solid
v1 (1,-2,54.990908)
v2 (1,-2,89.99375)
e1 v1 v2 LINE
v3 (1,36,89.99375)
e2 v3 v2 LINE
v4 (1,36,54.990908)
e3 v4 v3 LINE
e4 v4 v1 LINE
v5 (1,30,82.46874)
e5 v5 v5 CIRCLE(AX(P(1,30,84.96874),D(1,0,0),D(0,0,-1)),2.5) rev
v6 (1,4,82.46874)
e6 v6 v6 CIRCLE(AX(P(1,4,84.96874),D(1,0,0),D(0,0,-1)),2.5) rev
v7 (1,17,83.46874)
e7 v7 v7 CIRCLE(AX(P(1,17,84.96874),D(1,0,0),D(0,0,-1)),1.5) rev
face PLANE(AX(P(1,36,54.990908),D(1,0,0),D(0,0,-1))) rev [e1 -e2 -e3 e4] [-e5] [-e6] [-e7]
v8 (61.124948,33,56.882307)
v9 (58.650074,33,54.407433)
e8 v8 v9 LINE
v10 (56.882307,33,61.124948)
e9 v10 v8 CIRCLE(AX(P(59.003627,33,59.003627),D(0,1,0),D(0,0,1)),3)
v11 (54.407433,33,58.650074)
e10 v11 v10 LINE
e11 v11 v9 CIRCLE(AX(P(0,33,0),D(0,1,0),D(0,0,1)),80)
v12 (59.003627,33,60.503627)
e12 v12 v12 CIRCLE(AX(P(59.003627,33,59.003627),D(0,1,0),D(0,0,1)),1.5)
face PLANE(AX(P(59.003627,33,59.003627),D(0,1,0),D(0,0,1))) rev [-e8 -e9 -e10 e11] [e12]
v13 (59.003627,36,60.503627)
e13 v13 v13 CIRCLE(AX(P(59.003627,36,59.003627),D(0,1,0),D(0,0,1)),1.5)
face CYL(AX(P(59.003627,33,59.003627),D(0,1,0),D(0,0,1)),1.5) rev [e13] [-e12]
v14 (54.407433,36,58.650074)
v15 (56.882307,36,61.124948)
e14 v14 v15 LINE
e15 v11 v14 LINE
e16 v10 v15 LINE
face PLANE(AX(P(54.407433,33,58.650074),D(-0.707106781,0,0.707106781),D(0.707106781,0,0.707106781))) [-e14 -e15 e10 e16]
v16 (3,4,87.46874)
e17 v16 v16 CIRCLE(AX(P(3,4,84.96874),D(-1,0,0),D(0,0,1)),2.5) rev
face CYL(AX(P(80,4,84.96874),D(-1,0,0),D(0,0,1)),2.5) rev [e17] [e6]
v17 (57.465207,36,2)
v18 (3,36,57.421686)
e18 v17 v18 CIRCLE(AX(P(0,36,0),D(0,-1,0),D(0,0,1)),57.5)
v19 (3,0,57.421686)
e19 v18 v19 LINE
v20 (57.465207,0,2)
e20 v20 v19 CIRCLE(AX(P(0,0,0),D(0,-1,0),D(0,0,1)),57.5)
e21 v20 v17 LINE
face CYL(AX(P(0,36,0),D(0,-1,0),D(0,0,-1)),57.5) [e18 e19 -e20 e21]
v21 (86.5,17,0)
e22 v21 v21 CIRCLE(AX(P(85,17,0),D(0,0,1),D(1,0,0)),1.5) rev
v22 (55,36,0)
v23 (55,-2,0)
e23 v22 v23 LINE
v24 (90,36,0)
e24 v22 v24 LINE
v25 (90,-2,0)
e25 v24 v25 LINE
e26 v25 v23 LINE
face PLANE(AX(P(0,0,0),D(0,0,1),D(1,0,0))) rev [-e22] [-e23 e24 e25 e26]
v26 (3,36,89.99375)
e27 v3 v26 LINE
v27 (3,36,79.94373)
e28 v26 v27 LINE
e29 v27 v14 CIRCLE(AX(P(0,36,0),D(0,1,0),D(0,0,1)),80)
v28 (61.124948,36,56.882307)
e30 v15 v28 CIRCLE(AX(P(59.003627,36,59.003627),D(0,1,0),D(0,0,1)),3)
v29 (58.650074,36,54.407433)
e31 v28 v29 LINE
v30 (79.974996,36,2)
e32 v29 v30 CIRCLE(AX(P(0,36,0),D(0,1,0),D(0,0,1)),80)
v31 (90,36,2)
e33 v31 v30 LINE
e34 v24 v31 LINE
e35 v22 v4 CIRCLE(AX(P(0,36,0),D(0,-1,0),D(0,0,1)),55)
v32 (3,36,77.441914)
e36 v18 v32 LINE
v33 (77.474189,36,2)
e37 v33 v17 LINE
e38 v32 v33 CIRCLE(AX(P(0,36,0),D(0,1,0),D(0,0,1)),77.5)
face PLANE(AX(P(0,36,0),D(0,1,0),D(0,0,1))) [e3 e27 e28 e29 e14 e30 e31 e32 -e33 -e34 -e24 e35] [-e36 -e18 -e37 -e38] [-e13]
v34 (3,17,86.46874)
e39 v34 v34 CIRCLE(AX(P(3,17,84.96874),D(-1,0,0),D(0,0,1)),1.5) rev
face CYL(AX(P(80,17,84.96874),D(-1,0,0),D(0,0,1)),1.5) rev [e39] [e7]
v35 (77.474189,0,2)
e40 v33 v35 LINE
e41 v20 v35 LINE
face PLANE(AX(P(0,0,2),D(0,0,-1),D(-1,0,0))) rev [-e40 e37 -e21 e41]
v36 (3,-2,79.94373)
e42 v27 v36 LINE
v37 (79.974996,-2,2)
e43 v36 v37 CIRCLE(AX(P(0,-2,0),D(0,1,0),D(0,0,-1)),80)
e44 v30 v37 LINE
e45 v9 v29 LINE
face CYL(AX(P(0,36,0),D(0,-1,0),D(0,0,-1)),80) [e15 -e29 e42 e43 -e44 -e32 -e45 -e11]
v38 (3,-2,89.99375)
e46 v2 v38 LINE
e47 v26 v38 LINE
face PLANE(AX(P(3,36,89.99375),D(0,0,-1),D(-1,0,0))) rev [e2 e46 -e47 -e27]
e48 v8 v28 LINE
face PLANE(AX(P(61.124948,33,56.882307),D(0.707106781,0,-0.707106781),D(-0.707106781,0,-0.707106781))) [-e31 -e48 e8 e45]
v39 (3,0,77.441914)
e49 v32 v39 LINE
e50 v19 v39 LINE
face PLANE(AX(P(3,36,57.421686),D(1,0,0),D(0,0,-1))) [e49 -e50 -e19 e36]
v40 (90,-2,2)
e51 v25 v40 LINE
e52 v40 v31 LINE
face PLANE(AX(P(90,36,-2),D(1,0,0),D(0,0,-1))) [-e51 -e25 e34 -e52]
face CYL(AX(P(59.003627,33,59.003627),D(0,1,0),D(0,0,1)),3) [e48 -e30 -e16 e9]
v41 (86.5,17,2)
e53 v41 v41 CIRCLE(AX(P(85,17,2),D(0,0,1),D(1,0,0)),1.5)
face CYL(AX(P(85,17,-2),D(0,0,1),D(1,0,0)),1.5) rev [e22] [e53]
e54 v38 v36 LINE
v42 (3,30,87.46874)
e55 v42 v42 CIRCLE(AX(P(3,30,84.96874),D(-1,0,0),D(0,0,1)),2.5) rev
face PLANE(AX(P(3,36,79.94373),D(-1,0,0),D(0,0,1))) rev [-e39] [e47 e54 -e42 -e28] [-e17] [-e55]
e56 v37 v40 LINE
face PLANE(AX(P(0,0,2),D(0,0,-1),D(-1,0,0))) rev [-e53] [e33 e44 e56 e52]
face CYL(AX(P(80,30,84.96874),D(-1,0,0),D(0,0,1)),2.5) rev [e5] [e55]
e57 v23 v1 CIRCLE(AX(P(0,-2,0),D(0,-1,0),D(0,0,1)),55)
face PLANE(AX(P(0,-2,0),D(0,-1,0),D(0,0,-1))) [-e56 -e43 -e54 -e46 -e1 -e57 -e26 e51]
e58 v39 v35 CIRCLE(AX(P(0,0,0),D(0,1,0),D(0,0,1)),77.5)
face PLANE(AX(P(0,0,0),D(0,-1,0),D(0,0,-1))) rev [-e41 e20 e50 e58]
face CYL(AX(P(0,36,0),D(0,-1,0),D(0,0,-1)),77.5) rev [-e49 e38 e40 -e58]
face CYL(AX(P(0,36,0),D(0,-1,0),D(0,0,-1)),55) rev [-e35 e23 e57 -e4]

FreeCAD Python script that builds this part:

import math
import FreeCAD as App
import Part
import Sketcher
from FreeCAD import Vector
Q = App.Units.Quantity


def add_polygon(sketch, points):
    """Adds a closed chain of lines whose ends are joined by coincident constraints."""
    first, n = sketch.GeometryCount, len(points)
    for a, b in zip(points, points[1:] + points[:1]):
        sketch.addGeometry(Part.LineSegment(App.Vector(*a, 0), App.Vector(*b, 0)), False)
    for i in range(n):
        sketch.addConstraint(Sketcher.Constraint("Coincident", first + i, 2, first + (i + 1) % n, 1))

doc = App.newDocument("Part")
params = doc.addObject("Spreadsheet::Sheet", "Params")
for row, (alias, value) in enumerate([
    ("sketch1_radius", "80 mm"),
    ("sketch1_radius2", "55 mm"),
    ("sketch1_radius3", "77.5 mm"),
    ("sketch1_radius4", "57.5 mm"),
    ("sketch1_width", "2 mm"),
    ("pad1_length", "36 mm"),
    ("sketch2_radius", "55 mm"),
    ("sketch2_radius2", "80 mm"),
    ("sketch2_width", "2 mm"),
    ("pad2_length", "2 mm"),
    ("sketch3_diameter", "5 mm"),
    ("sketch3_diameter2", "3 mm"),
    ("sketch4_diameter", "3 mm"),
    ("sketch4_width", "35 mm"),
    ("sketch4_height", "38 mm"),
    ("pad3_length", "2 mm"),
    ("pad3_length2", "2 mm"),
    ("sketch6_diameter", "3 mm"),
    ("sketch6_radius", "3 mm"),
    ("sketch6_length", "3.5 mm"),
    ("pad4_length", "3 mm"),
], start=1):
    params.set(f"A{row}", alias)
    params.set(f"B{row}", "=" + value)
    params.setAlias(f"B{row}", alias)

body = doc.addObject("PartDesign::Body", "Body")

sketch1 = body.newObject("Sketcher::SketchObject", "Sketch")
sketch1.AttachmentSupport = (doc.getObject("XZ_Plane"), [""])
sketch1.MapMode = "FlatFace"
sketch1.addGeometry([
    Part.LineSegment(Vector(3, 89.99375, 0), Vector(3, 79.94373, 0)),
    Part.ArcOfCircle(Part.Circle(Vector(0, 0, 0), Vector(0, 0, 1), 80), math.radians(-87.850904), math.radians(87.850904)),
    Part.LineSegment(Vector(3, -79.94373, 0), Vector(3, -89.99375, 0)),
    Part.LineSegment(Vector(3, -89.99375, 0), Vector(1, -89.99375, 0)),
    Part.LineSegment(Vector(1, -89.99375, 0), Vector(1, -54.990908, 0)),
    Part.ArcOfCircle(Part.Circle(Vector(0, 0, 0), Vector(0, 0, 1), 55), math.radians(-88.958201), math.radians(88.958201)),
    Part.LineSegment(Vector(1, 54.990908, 0), Vector(1, 89.99375, 0)),
    Part.LineSegment(Vector(1, 89.99375, 0), Vector(3, 89.99375, 0)),
    Part.ArcOfCircle(Part.Circle(Vector(0, 0, 0), Vector(0, 0, 1), 77.5), math.radians(-87.781545), math.radians(87.781545)),
    Part.LineSegment(Vector(3, 77.441914, 0), Vector(3, 57.421686, 0)),
    Part.ArcOfCircle(Part.Circle(Vector(0, 0, 0), Vector(0, 0, 1), 57.5), math.radians(-87.009297), math.radians(87.009297)),
    Part.LineSegment(Vector(3, -57.421686, 0), Vector(3, -77.441914, 0)),
], False)
sketch1.addConstraint([
    Sketcher.Constraint("Coincident", 0, 2, 1, 2),
    Sketcher.Constraint("Coincident", 1, 1, 2, 1),
    Sketcher.Constraint("Coincident", 2, 2, 3, 1),
    Sketcher.Constraint("Coincident", 3, 2, 4, 1),
    Sketcher.Constraint("Coincident", 4, 2, 5, 1),
    Sketcher.Constraint("Coincident", 5, 2, 6, 1),
    Sketcher.Constraint("Coincident", 6, 2, 7, 1),
    Sketcher.Constraint("Coincident", 7, 2, 0, 1),
    Sketcher.Constraint("Coincident", 8, 2, 9, 1),
    Sketcher.Constraint("Coincident", 9, 2, 10, 2),
    Sketcher.Constraint("Coincident", 10, 1, 11, 1),
    Sketcher.Constraint("Coincident", 11, 2, 8, 1),
    Sketcher.Constraint("Vertical", 0),
    Sketcher.Constraint("Vertical", 2),
    Sketcher.Constraint("Horizontal", 3),
    Sketcher.Constraint("Vertical", 4),
    Sketcher.Constraint("Vertical", 6),
    Sketcher.Constraint("Horizontal", 7),
    Sketcher.Constraint("Vertical", 9),
    Sketcher.Constraint("Vertical", 11),
    Sketcher.Constraint("Coincident", 1, 3, -1, 1),
    Sketcher.Constraint("Coincident", 5, 3, -1, 1),
    Sketcher.Constraint("Coincident", 8, 3, -1, 1),
    Sketcher.Constraint("Coincident", 10, 3, -1, 1),
    Sketcher.Constraint("Symmetric", 3, 2, 6, 2, -1),
    Sketcher.Constraint("Vertical", 0, 2, 1, 1),
    Sketcher.Constraint("Vertical", 7, 2, 8, 2),
    Sketcher.Constraint("Vertical", 9, 2, 10, 1),
    Sketcher.Constraint("Radius", 1, 80.0),
    Sketcher.Constraint("Radius", 5, 55.0),
    Sketcher.Constraint("Radius", 8, 77.5),
    Sketcher.Constraint("Radius", 10, 57.5),
    Sketcher.Constraint("DistanceX", 3, 2, 3, 1, 2.0),
    Sketcher.Constraint("DistanceX", -1, 1, 0, 2, 3.0),
    Sketcher.Constraint("DistanceY", 0, 2, 0, 1, 10.05002),
])
sketch1.setExpression("Constraints[28]", "Params.sketch1_radius")
sketch1.setExpression("Constraints[29]", "Params.sketch1_radius2")
sketch1.setExpression("Constraints[30]", "Params.sketch1_radius3")
sketch1.setExpression("Constraints[31]", "Params.sketch1_radius4")
sketch1.setExpression("Constraints[32]", "Params.sketch1_width")
pad1 = body.newObject("PartDesign::Pad", "Pad")
pad1.Profile = sketch1
pad1.setExpression("Length", "Params.pad1_length")
pad1.Reversed = True

sketch2 = body.newObject("Sketcher::SketchObject", "Sketch001")
sketch2.AttachmentSupport = (doc.getObject("XZ_Plane"), [""])
sketch2.MapMode = "FlatFace"
sketch2.AttachmentOffset = App.Placement(Vector(0, 0, 2), App.Rotation())
sketch2.addGeometry([
    Part.LineSegment(Vector(1, -89.99375, 0), Vector(1, -54.990908, 0)),
    Part.ArcOfCircle(Part.Circle(Vector(0, 0, 0), Vector(0, 0, 1), 55), math.radians(-88.958201), math.radians(88.958201)),
    Part.LineSegment(Vector(1, 54.990908, 0), Vector(1, 89.99375, 0)),
    Part.LineSegment(Vector(1, 89.99375, 0), Vector(3, 89.99375, 0)),
    Part.LineSegment(Vector(3, 89.99375, 0), Vector(3, 79.94373, 0)),
    Part.ArcOfCircle(Part.Circle(Vector(0, 0, 0), Vector(0, 0, 1), 80), math.radians(-87.850904), math.radians(87.850904)),
    Part.LineSegment(Vector(3, -79.94373, 0), Vector(3, -89.99375, 0)),
    Part.LineSegment(Vector(3, -89.99375, 0), Vector(1, -89.99375, 0)),
], False)
sketch2.addConstraint([
    Sketcher.Constraint("Coincident", 0, 2, 1, 1),
    Sketcher.Constraint("Coincident", 1, 2, 2, 1),
    Sketcher.Constraint("Coincident", 2, 2, 3, 1),
    Sketcher.Constraint("Coincident", 3, 2, 4, 1),
    Sketcher.Constraint("Coincident", 4, 2, 5, 2),
    Sketcher.Constraint("Coincident", 5, 1, 6, 1),
    Sketcher.Constraint("Coincident", 6, 2, 7, 1),
    Sketcher.Constraint("Coincident", 7, 2, 0, 1),
    Sketcher.Constraint("Vertical", 0),
    Sketcher.Constraint("Vertical", 2),
    Sketcher.Constraint("Horizontal", 3),
    Sketcher.Constraint("Vertical", 4),
    Sketcher.Constraint("Vertical", 6),
    Sketcher.Constraint("Horizontal", 7),
    Sketcher.Constraint("Coincident", 1, 3, -1, 1),
    Sketcher.Constraint("Coincident", 5, 3, -1, 1),
    Sketcher.Constraint("Symmetric", 3, 2, 6, 2, -1),
    Sketcher.Constraint("Vertical", 0, 2, 1, 2),
    Sketcher.Constraint("Radius", 1, 55.0),
    Sketcher.Constraint("Radius", 5, 80.0),
    Sketcher.Constraint("DistanceX", 3, 1, 3, 2, 2.0),
    Sketcher.Constraint("DistanceX", -1, 1, 0, 2, 1.0),
    Sketcher.Constraint("DistanceY", 0, 1, 0, 2, 35.002841),
])
sketch2.setExpression("Constraints[18]", "Params.sketch2_radius")
sketch2.setExpression("Constraints[19]", "Params.sketch2_radius2")
sketch2.setExpression("Constraints[20]", "Params.sketch2_width")
pad2 = body.newObject("PartDesign::Pad", "Pad001")
pad2.Profile = sketch2
pad2.setExpression("Length", "Params.pad2_length")
pad2.Reversed = True

sketch3 = body.newObject("Sketcher::SketchObject", "Sketch002")
sketch3.AttachmentSupport = (doc.getObject("YZ_Plane"), [""])
sketch3.MapMode = "FlatFace"
sketch3.addGeometry([
    Part.Circle(Vector(30, 84.96874, 0), Vector(0, 0, 1), 2.5),
    Part.Circle(Vector(17, 84.96874, 0), Vector(0, 0, 1), 1.5),
    Part.Circle(Vector(17, -84.96874, 0), Vector(0, 0, 1), 1.5),
    Part.Circle(Vector(30, -84.96874, 0), Vector(0, 0, 1), 2.5),
    Part.Circle(Vector(4, 84.96874, 0), Vector(0, 0, 1), 2.5),
], False)
sketch3.addConstraint([
    Sketcher.Constraint("Equal", 1, 2),
    Sketcher.Constraint("Equal", 0, 3),
    Sketcher.Constraint("Equal", 3, 4),
    Sketcher.Constraint("Symmetric", 1, 3, 2, 3, -1),
    Sketcher.Constraint("Symmetric", 0, 3, 3, 3, -1),
    Sketcher.Constraint("Horizontal", 0, 3, 1, 3),
    Sketcher.Constraint("Horizontal", 1, 3, 4, 3),
    Sketcher.Constraint("Diameter", 0, 5.0),
    Sketcher.Constraint("Diameter", 1, 3.0),
    Sketcher.Constraint("DistanceX", -1, 1, 0, 3, 30.0),
    Sketcher.Constraint("DistanceX", -1, 1, 1, 3, 17.0),
    Sketcher.Constraint("DistanceX", -1, 1, 4, 3, 4.0),
    Sketcher.Constraint("DistanceY", -1, 1, 0, 3, 84.96874),
])
sketch3.setExpression("Constraints[7]", "Params.sketch3_diameter")
sketch3.setExpression("Constraints[8]", "Params.sketch3_diameter2")
pocket1 = body.newObject("PartDesign::Pocket", "Pocket")
pocket1.Profile = sketch3
pocket1.Type = "ThroughAll"
pocket1.Reversed = True

sketch4 = body.newObject("Sketcher::SketchObject", "Sketch003")
sketch4.AttachmentSupport = (doc.getObject("XY_Plane"), [""])
sketch4.MapMode = "FlatFace"
add_polygon(sketch4, [(55, 36), (55, -2), (90, -2), (90, 36)])
sketch4.addGeometry(Part.Circle(Vector(85, 17, 0), Vector(0, 0, 1), 1.5), False)
sketch4.addConstraint([
    Sketcher.Constraint("Vertical", 0),
    Sketcher.Constraint("Horizontal", 1),
    Sketcher.Constraint("Vertical", 2),
    Sketcher.Constraint("Horizontal", 3),
    Sketcher.Constraint("Diameter", 4, 3.0),
    Sketcher.Constraint("DistanceX", 1, 1, 1, 2, 35.0),
    Sketcher.Constraint("DistanceY", 0, 2, 0, 1, 38.0),
    Sketcher.Constraint("DistanceX", -1, 1, 4, 3, 85.0),
    Sketcher.Constraint("DistanceY", -1, 1, 4, 3, 17.0),
    Sketcher.Constraint("DistanceX", -1, 1, 0, 2, 55.0),
    Sketcher.Constraint("DistanceY", 0, 2, -1, 1, 2.0),
])
sketch4.setExpression("Constraints[8]", "Params.sketch4_diameter")
sketch4.setExpression("Constraints[9]", "Params.sketch4_width")
sketch4.setExpression("Constraints[10]", "Params.sketch4_height")
pad3 = body.newObject("PartDesign::Pad", "Pad002")
pad3.Profile = sketch4
pad3.Type = "TwoLengths"
pad3.setExpression("Length", "Params.pad3_length")
pad3.setExpression("Length2", "Params.pad3_length2")

sketch5 = body.newObject("Sketcher::SketchObject", "Sketch004")
sketch5.AttachmentSupport = (doc.getObject("XY_Plane"), [""])
sketch5.MapMode = "FlatFace"
add_polygon(sketch5, [(-2.18467, 44.525509), (-2.18467, -3.381722), (96.500492, -3.381722), (96.500492, 44.525509)])
sketch5.addConstraint([
    Sketcher.Constraint("Vertical", 0),
    Sketcher.Constraint("Horizontal", 1),
    Sketcher.Constraint("Vertical", 2),
    Sketcher.Constraint("Horizontal", 3),
    Sketcher.Constraint("DistanceY", 0, 2, 0, 1, 47.907232),
    Sketcher.Constraint("DistanceX", 1, 1, 1, 2, 98.685162),
    Sketcher.Constraint("DistanceX", 0, 2, -1, 1, 2.18467),
    Sketcher.Constraint("DistanceY", -1, 1, 2, 2, 44.525509),
])
pocket2 = body.newObject("PartDesign::Pocket", "Pocket001")
pocket2.Profile = sketch5
pocket2.Type = "ThroughAll"

sketch6 = body.newObject("Sketcher::SketchObject", "Sketch005")
sketch6.AttachmentSupport = (doc.getObject("XZ_Plane"), [""])
sketch6.MapMode = "FlatFace"
sketch6.AttachmentOffset = App.Placement(Vector(0, 0, -36), App.Rotation())
sketch6.addGeometry([
    Part.LineSegment(Vector(58.650074, 54.407433, 0), Vector(54.407433, 58.650074, 0)),
    Part.LineSegment(Vector(54.407433, 58.650074, 0), Vector(56.882307, 61.124948, 0)),
    Part.ArcOfCircle(Part.Circle(Vector(59.003627, 59.003627, 0), Vector(0, 0, 1), 3), math.radians(-45), math.radians(135)),
    Part.LineSegment(Vector(61.124948, 56.882307, 0), Vector(58.650074, 54.407433, 0)),
    Part.Circle(Vector(59.003627, 59.003627, 0), Vector(0, 0, 1), 1.5),
], False)
sketch6.addConstraint([
    Sketcher.Constraint("Coincident", 0, 2, 1, 1),
    Sketcher.Constraint("Tangent", 1, 2, 2, 2),
    Sketcher.Constraint("Tangent", 2, 1, 3, 1),
    Sketcher.Constraint("Coincident", 3, 2, 0, 1),
    Sketcher.Constraint("Coincident", 4, 3, 2, 3),
    Sketcher.Constraint("Perpendicular", 0, 1),
    Sketcher.Constraint("Parallel", 1, 3),
    Sketcher.Constraint("Diameter", 4, 3.0),
    Sketcher.Constraint("Radius", 2, 3.0),
    Sketcher.Constraint("Angle", 0, Q("135 deg")),
    Sketcher.Constraint("Distance", 1, 3.5),
    Sketcher.Constraint("DistanceX", -1, 1, 2, 3, 59.003627),
    Sketcher.Constraint("DistanceY", -1, 1, 2, 3, 59.003627),
])
sketch6.setExpression("Constraints[7]", "Params.sketch6_diameter")
sketch6.setExpression("Constraints[8]", "Params.sketch6_radius")
sketch6.setExpression("Constraints[10]", "Params.sketch6_length")
pad4 = body.newObject("PartDesign::Pad", "Pad003")
pad4.Profile = sketch6
pad4.setExpression("Length", "Params.pad4_length")

doc.recompute()
